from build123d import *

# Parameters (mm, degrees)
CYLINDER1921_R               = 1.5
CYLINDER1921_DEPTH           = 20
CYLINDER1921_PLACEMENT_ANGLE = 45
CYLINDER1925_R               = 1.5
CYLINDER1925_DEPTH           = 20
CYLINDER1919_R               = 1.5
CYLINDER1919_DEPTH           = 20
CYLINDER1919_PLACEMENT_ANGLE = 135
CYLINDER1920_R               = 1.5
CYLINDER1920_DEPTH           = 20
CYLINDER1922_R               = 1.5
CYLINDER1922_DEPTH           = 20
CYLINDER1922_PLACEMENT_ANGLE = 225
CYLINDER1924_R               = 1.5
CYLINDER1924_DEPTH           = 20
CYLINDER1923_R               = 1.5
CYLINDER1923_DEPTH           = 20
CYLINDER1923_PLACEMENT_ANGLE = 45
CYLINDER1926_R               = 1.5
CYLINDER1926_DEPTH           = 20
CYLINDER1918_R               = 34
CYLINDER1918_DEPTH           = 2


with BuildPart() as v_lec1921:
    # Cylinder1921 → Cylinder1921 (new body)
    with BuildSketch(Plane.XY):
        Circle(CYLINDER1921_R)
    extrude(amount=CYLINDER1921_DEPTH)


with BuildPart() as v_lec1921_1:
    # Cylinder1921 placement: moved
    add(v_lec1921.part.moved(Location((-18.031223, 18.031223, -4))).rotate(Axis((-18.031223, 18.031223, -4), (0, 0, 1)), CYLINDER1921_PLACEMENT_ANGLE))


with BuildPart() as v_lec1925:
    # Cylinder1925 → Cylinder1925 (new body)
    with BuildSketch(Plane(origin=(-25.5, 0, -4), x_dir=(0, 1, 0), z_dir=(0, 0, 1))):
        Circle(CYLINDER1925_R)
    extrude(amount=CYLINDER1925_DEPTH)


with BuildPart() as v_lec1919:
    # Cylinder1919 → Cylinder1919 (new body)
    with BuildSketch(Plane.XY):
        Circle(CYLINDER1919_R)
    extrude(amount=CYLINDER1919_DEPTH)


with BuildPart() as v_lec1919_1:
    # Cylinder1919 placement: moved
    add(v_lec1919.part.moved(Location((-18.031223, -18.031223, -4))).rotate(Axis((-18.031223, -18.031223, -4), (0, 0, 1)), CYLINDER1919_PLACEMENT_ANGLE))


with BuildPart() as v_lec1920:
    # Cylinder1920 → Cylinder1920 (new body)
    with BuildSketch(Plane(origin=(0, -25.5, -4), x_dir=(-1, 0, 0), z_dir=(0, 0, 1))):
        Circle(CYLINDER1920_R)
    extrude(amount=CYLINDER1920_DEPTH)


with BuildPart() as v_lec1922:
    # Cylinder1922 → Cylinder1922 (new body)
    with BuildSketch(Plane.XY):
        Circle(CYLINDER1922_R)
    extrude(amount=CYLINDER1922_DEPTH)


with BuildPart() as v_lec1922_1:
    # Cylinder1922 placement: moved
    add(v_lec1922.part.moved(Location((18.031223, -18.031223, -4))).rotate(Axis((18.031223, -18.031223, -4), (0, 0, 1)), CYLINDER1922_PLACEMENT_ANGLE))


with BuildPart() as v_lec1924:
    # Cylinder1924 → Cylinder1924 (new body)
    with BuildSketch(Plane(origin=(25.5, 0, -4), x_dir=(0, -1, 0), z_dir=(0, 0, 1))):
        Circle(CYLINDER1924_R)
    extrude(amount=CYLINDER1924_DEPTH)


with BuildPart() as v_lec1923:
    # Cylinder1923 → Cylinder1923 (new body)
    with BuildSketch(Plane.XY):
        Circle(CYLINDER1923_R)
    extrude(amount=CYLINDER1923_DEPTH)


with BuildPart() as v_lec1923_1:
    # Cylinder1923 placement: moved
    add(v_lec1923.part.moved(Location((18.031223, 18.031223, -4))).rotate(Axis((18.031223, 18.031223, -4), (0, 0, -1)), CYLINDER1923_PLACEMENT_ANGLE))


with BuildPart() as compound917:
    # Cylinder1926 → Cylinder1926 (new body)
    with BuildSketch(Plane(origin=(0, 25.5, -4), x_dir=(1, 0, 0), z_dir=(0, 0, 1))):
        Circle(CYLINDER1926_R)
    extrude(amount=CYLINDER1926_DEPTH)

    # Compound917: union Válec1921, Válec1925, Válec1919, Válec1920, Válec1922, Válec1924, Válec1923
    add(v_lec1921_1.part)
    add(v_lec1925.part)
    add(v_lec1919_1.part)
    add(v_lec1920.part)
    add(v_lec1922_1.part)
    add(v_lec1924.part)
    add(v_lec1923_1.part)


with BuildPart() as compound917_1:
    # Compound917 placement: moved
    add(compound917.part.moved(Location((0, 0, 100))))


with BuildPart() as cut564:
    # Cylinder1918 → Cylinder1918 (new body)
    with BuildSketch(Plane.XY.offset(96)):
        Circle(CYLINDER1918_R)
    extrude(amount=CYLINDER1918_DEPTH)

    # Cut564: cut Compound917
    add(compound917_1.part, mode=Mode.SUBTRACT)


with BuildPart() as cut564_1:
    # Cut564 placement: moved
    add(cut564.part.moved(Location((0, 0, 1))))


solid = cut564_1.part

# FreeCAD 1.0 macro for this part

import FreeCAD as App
import Part
import Sketcher

doc = App.newDocument("Part")
body = doc.addObject("PartDesign::Body", "Body")

# Sketch on XY plane
sketch1 = body.newObject("Sketcher::SketchObject", "Sketch")
sketch1.AttachmentSupport = (doc.getObject("XY_Plane"), [""])
sketch1.MapMode = "FlatFace"
sketch1.addGeometry(Part.Circle(App.Vector(0, 0, 0), App.Vector(0, 0, 1), 1.5), False)
sketch1.addConstraint([
    Sketcher.Constraint("Coincident", 0, 3, -1, 1),
    Sketcher.Constraint("Diameter", 0, 3.0),
])
pad1 = body.newObject("PartDesign::Pad", "Pad")
pad1.Profile = sketch1
pad1.Length = 20
body2 = doc.addObject("PartDesign::Body", "Body001")
doc.recompute()

body.Placement = App.Placement(App.Vector(-18.031223, 18.031223, -4), App.Rotation(App.Vector(0, 0, 1), 45))
boolean = body2.newObject("PartDesign::Boolean", "Boolean")
boolean.Type = "Fuse"
boolean.addObjects([body])
body3 = doc.addObject("PartDesign::Body", "Body002")

# Sketch on XY plane
sketch2 = body3.newObject("Sketcher::SketchObject", "Sketch001")
sketch2.AttachmentSupport = (doc.getObject("XY_Plane002"), [""])
sketch2.MapMode = "FlatFace"
sketch2.AttachmentOffset = App.Placement(App.Vector(0, 0, -4), App.Rotation())
sketch2.addGeometry(Part.Circle(App.Vector(-25.5, 0, 0), App.Vector(0, 0, 1), 1.5), False)
sketch2.addConstraint([
    Sketcher.Constraint("PointOnObject", 0, 3, -1),
    Sketcher.Constraint("Diameter", 0, 3.0),
    Sketcher.Constraint("DistanceX", 0, 3, -1, 1, 25.5),
])
pad2 = body3.newObject("PartDesign::Pad", "Pad001")
pad2.Profile = sketch2
pad2.Length = 20
body4 = doc.addObject("PartDesign::Body", "Body003")

# Sketch on XY plane
sketch3 = body4.newObject("Sketcher::SketchObject", "Sketch002")
sketch3.AttachmentSupport = (doc.getObject("XY_Plane003"), [""])
sketch3.MapMode = "FlatFace"
sketch3.addGeometry(Part.Circle(App.Vector(0, 0, 0), App.Vector(0, 0, 1), 1.5), False)
sketch3.addConstraint([
    Sketcher.Constraint("Coincident", 0, 3, -1, 1),
    Sketcher.Constraint("Diameter", 0, 3.0),
])
pad3 = body4.newObject("PartDesign::Pad", "Pad002")
pad3.Profile = sketch3
pad3.Length = 20
body5 = doc.addObject("PartDesign::Body", "Body004")
doc.recompute()

body4.Placement = App.Placement(App.Vector(-18.031223, -18.031223, -4), App.Rotation(App.Vector(0, 0, 1), 135))
boolean2 = body5.newObject("PartDesign::Boolean", "Boolean001")
boolean2.Type = "Fuse"
boolean2.addObjects([body4])
body6 = doc.addObject("PartDesign::Body", "Body005")

# Sketch on XY plane
sketch4 = body6.newObject("Sketcher::SketchObject", "Sketch003")
sketch4.AttachmentSupport = (doc.getObject("XY_Plane005"), [""])
sketch4.MapMode = "FlatFace"
sketch4.AttachmentOffset = App.Placement(App.Vector(0, 0, -4), App.Rotation())
sketch4.addGeometry(Part.Circle(App.Vector(0, -25.5, 0), App.Vector(0, 0, 1), 1.5), False)
sketch4.addConstraint([
    Sketcher.Constraint("PointOnObject", 0, 3, -2),
    Sketcher.Constraint("Diameter", 0, 3.0),
    Sketcher.Constraint("DistanceY", 0, 3, -1, 1, 25.5),
])
pad4 = body6.newObject("PartDesign::Pad", "Pad003")
pad4.Profile = sketch4
pad4.Length = 20
body7 = doc.addObject("PartDesign::Body", "Body006")

# Sketch on XY plane
sketch5 = body7.newObject("Sketcher::SketchObject", "Sketch004")
sketch5.AttachmentSupport = (doc.getObject("XY_Plane006"), [""])
sketch5.MapMode = "FlatFace"
sketch5.addGeometry(Part.Circle(App.Vector(0, 0, 0), App.Vector(0, 0, 1), 1.5), False)
sketch5.addConstraint([
    Sketcher.Constraint("Coincident", 0, 3, -1, 1),
    Sketcher.Constraint("Diameter", 0, 3.0),
])
pad5 = body7.newObject("PartDesign::Pad", "Pad004")
pad5.Profile = sketch5
pad5.Length = 20
body8 = doc.addObject("PartDesign::Body", "Body007")
doc.recompute()

body7.Placement = App.Placement(App.Vector(18.031223, -18.031223, -4), App.Rotation(App.Vector(0, 0, 1), 225))
boolean3 = body8.newObject("PartDesign::Boolean", "Boolean002")
boolean3.Type = "Fuse"
boolean3.addObjects([body7])
body9 = doc.addObject("PartDesign::Body", "Body008")

# Sketch on XY plane
sketch6 = body9.newObject("Sketcher::SketchObject", "Sketch005")
sketch6.AttachmentSupport = (doc.getObject("XY_Plane008"), [""])
sketch6.MapMode = "FlatFace"
sketch6.AttachmentOffset = App.Placement(App.Vector(0, 0, -4), App.Rotation())
sketch6.addGeometry(Part.Circle(App.Vector(25.5, 0, 0), App.Vector(0, 0, 1), 1.5), False)
sketch6.addConstraint([
    Sketcher.Constraint("PointOnObject", 0, 3, -1),
    Sketcher.Constraint("Diameter", 0, 3.0),
    Sketcher.Constraint("DistanceX", -1, 1, 0, 3, 25.5),
])
pad6 = body9.newObject("PartDesign::Pad", "Pad005")
pad6.Profile = sketch6
pad6.Length = 20
body10 = doc.addObject("PartDesign::Body", "Body009")

# Sketch on XY plane
sketch7 = body10.newObject("Sketcher::SketchObject", "Sketch006")
sketch7.AttachmentSupport = (doc.getObject("XY_Plane009"), [""])
sketch7.MapMode = "FlatFace"
sketch7.addGeometry(Part.Circle(App.Vector(0, 0, 0), App.Vector(0, 0, 1), 1.5), False)
sketch7.addConstraint([
    Sketcher.Constraint("Coincident", 0, 3, -1, 1),
    Sketcher.Constraint("Diameter", 0, 3.0),
])
pad7 = body10.newObject("PartDesign::Pad", "Pad006")
pad7.Profile = sketch7
pad7.Length = 20
body11 = doc.addObject("PartDesign::Body", "Body010")
doc.recompute()

body10.Placement = App.Placement(App.Vector(18.031223, 18.031223, -4), App.Rotation(App.Vector(0, 0, -1), 45))
boolean4 = body11.newObject("PartDesign::Boolean", "Boolean003")
boolean4.Type = "Fuse"
boolean4.addObjects([body10])
body12 = doc.addObject("PartDesign::Body", "Body011")
body12.AllowCompound = True

# Sketch on XY plane
sketch8 = body12.newObject("Sketcher::SketchObject", "Sketch007")
sketch8.AttachmentSupport = (doc.getObject("XY_Plane011"), [""])
sketch8.MapMode = "FlatFace"
sketch8.AttachmentOffset = App.Placement(App.Vector(0, 0, -4), App.Rotation())
sketch8.addGeometry(Part.Circle(App.Vector(0, 25.5, 0), App.Vector(0, 0, 1), 1.5), False)
sketch8.addConstraint([
    Sketcher.Constraint("PointOnObject", 0, 3, -2),
    Sketcher.Constraint("Diameter", 0, 3.0),
    Sketcher.Constraint("DistanceY", -1, 1, 0, 3, 25.5),
])
pad8 = body12.newObject("PartDesign::Pad", "Pad007")
pad8.Profile = sketch8
pad8.Length = 20
doc.recompute()

boolean5 = body12.newObject("PartDesign::Boolean", "Boolean004")
boolean5.Type = "Fuse"
boolean5.addObjects([body2])
doc.recompute()

boolean6 = body12.newObject("PartDesign::Boolean", "Boolean005")
boolean6.Type = "Fuse"
boolean6.addObjects([body3])
doc.recompute()

boolean7 = body12.newObject("PartDesign::Boolean", "Boolean006")
boolean7.Type = "Fuse"
boolean7.addObjects([body5])
doc.recompute()

boolean8 = body12.newObject("PartDesign::Boolean", "Boolean007")
boolean8.Type = "Fuse"
boolean8.addObjects([body6])
doc.recompute()

boolean9 = body12.newObject("PartDesign::Boolean", "Boolean008")
boolean9.Type = "Fuse"
boolean9.addObjects([body8])
doc.recompute()

boolean10 = body12.newObject("PartDesign::Boolean", "Boolean009")
boolean10.Type = "Fuse"
boolean10.addObjects([body9])
doc.recompute()

boolean11 = body12.newObject("PartDesign::Boolean", "Boolean010")
boolean11.Type = "Fuse"
boolean11.addObjects([body11])
body13 = doc.addObject("PartDesign::Body", "Body012")
body13.AllowCompound = True
doc.recompute()

body12.Placement = App.Placement(App.Vector(0, 0, 100), App.Rotation(App.Vector(0, 0, 1), 0))
boolean12 = body13.newObject("PartDesign::Boolean", "Boolean011")
boolean12.Type = "Fuse"
boolean12.addObjects([body12])
body14 = doc.addObject("PartDesign::Body", "Body013")

# Sketch on XY plane
sketch9 = body14.newObject("Sketcher::SketchObject", "Sketch008")
sketch9.AttachmentSupport = (doc.getObject("XY_Plane013"), [""])
sketch9.MapMode = "FlatFace"
sketch9.AttachmentOffset = App.Placement(App.Vector(0, 0, 96), App.Rotation())
sketch9.addGeometry(Part.Circle(App.Vector(0, 0, 0), App.Vector(0, 0, 1), 34), False)
sketch9.addConstraint([
    Sketcher.Constraint("Coincident", 0, 3, -1, 1),
    Sketcher.Constraint("Diameter", 0, 68.0),
])
pad9 = body14.newObject("PartDesign::Pad", "Pad008")
pad9.Profile = sketch9
pad9.Length = 2
doc.recompute()

boolean13 = body14.newObject("PartDesign::Boolean", "Boolean012")
boolean13.Type = "Cut"
boolean13.addObjects([body13])
body15 = doc.addObject("PartDesign::Body", "Body014")
doc.recompute()

body14.Placement = App.Placement(App.Vector(0, 0, 1), App.Rotation(App.Vector(0, 0, 1), 0))
boolean14 = body15.newObject("PartDesign::Boolean", "Boolean013")
boolean14.Type = "Fuse"
boolean14.addObjects([body14])

doc.recompute()
